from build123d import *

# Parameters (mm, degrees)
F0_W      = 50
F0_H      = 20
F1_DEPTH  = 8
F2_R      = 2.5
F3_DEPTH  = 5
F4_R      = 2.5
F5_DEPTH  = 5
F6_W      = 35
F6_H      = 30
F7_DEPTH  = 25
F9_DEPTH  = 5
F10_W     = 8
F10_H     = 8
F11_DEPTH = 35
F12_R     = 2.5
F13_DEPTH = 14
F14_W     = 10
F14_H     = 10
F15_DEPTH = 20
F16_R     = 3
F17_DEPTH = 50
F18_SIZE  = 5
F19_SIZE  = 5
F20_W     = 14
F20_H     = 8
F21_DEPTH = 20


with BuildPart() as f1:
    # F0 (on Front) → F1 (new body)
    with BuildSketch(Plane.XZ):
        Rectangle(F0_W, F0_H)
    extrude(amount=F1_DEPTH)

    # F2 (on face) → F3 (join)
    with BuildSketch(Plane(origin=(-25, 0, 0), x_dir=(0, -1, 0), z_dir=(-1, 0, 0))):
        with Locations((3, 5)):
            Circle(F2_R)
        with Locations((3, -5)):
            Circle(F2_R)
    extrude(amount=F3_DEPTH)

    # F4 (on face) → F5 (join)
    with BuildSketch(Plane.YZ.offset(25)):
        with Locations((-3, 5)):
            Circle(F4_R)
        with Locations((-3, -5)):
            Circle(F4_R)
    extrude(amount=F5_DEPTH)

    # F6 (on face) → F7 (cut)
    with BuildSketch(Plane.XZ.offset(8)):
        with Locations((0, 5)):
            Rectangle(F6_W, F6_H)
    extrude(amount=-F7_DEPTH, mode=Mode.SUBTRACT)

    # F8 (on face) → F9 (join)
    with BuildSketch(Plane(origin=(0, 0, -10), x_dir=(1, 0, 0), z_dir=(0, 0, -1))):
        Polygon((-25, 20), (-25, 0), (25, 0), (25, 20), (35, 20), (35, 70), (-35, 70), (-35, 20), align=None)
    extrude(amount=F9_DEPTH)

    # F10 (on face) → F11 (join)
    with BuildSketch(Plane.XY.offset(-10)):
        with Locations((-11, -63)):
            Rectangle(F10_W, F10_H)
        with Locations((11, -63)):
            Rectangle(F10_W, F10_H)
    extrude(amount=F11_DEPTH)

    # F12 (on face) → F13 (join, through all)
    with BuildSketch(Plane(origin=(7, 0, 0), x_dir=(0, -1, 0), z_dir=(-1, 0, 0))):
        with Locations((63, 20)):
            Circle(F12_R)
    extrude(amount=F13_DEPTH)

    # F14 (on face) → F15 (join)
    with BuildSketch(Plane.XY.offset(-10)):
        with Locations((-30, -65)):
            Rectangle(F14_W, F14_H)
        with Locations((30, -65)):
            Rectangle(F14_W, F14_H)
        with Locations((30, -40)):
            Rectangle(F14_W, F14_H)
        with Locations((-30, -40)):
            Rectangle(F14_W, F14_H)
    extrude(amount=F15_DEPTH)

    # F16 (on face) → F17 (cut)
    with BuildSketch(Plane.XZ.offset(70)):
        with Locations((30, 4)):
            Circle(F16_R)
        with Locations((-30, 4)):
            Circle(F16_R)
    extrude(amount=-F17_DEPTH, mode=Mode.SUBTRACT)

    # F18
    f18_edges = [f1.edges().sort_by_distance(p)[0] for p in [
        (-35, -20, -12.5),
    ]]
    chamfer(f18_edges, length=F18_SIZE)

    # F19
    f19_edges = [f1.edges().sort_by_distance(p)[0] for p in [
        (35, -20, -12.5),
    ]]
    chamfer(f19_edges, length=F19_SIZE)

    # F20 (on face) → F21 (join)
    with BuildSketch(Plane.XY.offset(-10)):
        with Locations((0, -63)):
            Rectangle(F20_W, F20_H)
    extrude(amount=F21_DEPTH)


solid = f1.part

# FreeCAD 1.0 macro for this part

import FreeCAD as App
import Part
import Sketcher
from FreeCAD import Vector
Q = App.Units.Quantity


def edges_at(feature, points):
    """Names of the edges that pass closest to the given points."""
    edges = feature.Shape.Edges
    near = lambda p: min(range(len(edges)), key=lambda i: edges[i].distToShape(Part.Vertex(*p))[0])
    return sorted({f"Edge{near(p) + 1}" for p in points})

doc = App.newDocument("Part")
body = doc.addObject("PartDesign::Body", "Body")
body.AllowCompound = True

# Sketch on XZ plane
sketch1 = doc.addObject("Sketcher::SketchObject", "Sketch")
body.addObject(sketch1)
sketch1.AttachmentSupport = (doc.XZ_Plane, [""])
sketch1.MapMode = "FlatFace"
sketch1.addGeometry(Part.LineSegment(Vector(-25, 10, 0), Vector(-25, -10, 0)), False)
sketch1.addGeometry(Part.LineSegment(Vector(-25, -10, 0), Vector(25, -10, 0)), False)
sketch1.addGeometry(Part.LineSegment(Vector(25, -10, 0), Vector(25, 10, 0)), False)
sketch1.addGeometry(Part.LineSegment(Vector(25, 10, 0), Vector(-25, 10, 0)), False)
sketch1.addConstraint(Sketcher.Constraint("Coincident", 0, 2, 1, 1))
sketch1.addConstraint(Sketcher.Constraint("Coincident", 1, 2, 2, 1))
sketch1.addConstraint(Sketcher.Constraint("Coincident", 2, 2, 3, 1))
sketch1.addConstraint(Sketcher.Constraint("Coincident", 3, 2, 0, 1))
sketch1.addConstraint(Sketcher.Constraint("Vertical", 0))
sketch1.addConstraint(Sketcher.Constraint("Horizontal", 1))
sketch1.addConstraint(Sketcher.Constraint("Vertical", 2))
sketch1.addConstraint(Sketcher.Constraint("Horizontal", 3))
sketch1.addConstraint(Sketcher.Constraint("Symmetric", 0, 2, 2, 2, -1, 1))
sketch1.addConstraint(Sketcher.Constraint("DistanceX", 1, 1, 1, 2, Q("50 mm")))
sketch1.addConstraint(Sketcher.Constraint("DistanceY", 0, 2, 0, 1, Q("20 mm")))
pad1 = doc.addObject("PartDesign::Pad", "Pad")
body.addObject(pad1)
pad1.Profile = sketch1
pad1.Length = 8

# Sketch on YZ plane
sketch2 = doc.addObject("Sketcher::SketchObject", "Sketch001")
body.addObject(sketch2)
sketch2.AttachmentSupport = (doc.YZ_Plane, [""])
sketch2.MapMode = "FlatFace"
sketch2.AttachmentOffset = App.Placement(Vector(0, 0, -25), App.Rotation())
sketch2.addGeometry(Part.Circle(Vector(-3, 5, 0), Vector(0, 0, 1), 2.5), False)
sketch2.addGeometry(Part.Circle(Vector(-3, -5, 0), Vector(0, 0, 1), 2.5), False)
sketch2.addConstraint(Sketcher.Constraint("Equal", 0, 1))
sketch2.addConstraint(Sketcher.Constraint("Symmetric", 0, 3, 1, 3, -1))
sketch2.addConstraint(Sketcher.Constraint("Diameter", 0, Q("5 mm")))
sketch2.addConstraint(Sketcher.Constraint("DistanceX", 0, 3, -1, 1, Q("3 mm")))
sketch2.addConstraint(Sketcher.Constraint("DistanceY", -1, 1, 0, 3, Q("5 mm")))
pad2 = doc.addObject("PartDesign::Pad", "Pad001")
body.addObject(pad2)
pad2.Profile = sketch2
pad2.Length = 5
pad2.Reversed = True

# Sketch on YZ plane
sketch3 = doc.addObject("Sketcher::SketchObject", "Sketch002")
body.addObject(sketch3)
sketch3.AttachmentSupport = (doc.YZ_Plane, [""])
sketch3.MapMode = "FlatFace"
sketch3.AttachmentOffset = App.Placement(Vector(0, 0, 25), App.Rotation())
sketch3.addGeometry(Part.Circle(Vector(-3, 5, 0), Vector(0, 0, 1), 2.5), False)
sketch3.addGeometry(Part.Circle(Vector(-3, -5, 0), Vector(0, 0, 1), 2.5), False)
sketch3.addConstraint(Sketcher.Constraint("Equal", 0, 1))
sketch3.addConstraint(Sketcher.Constraint("Symmetric", 0, 3, 1, 3, -1))
sketch3.addConstraint(Sketcher.Constraint("Diameter", 0, Q("5 mm")))
sketch3.addConstraint(Sketcher.Constraint("DistanceX", 0, 3, -1, 1, Q("3 mm")))
sketch3.addConstraint(Sketcher.Constraint("DistanceY", -1, 1, 0, 3, Q("5 mm")))
pad3 = doc.addObject("PartDesign::Pad", "Pad002")
body.addObject(pad3)
pad3.Profile = sketch3
pad3.Length = 5

# Sketch on XZ plane
sketch4 = doc.addObject("Sketcher::SketchObject", "Sketch003")
body.addObject(sketch4)
sketch4.AttachmentSupport = (doc.XZ_Plane, [""])
sketch4.MapMode = "FlatFace"
sketch4.AttachmentOffset = App.Placement(Vector(0, 0, 8), App.Rotation())
sketch4.addGeometry(Part.LineSegment(Vector(-17.5, 20, 0), Vector(-17.5, -10, 0)), False)
sketch4.addGeometry(Part.LineSegment(Vector(-17.5, -10, 0), Vector(17.5, -10, 0)), False)
sketch4.addGeometry(Part.LineSegment(Vector(17.5, -10, 0), Vector(17.5, 20, 0)), False)
sketch4.addGeometry(Part.LineSegment(Vector(17.5, 20, 0), Vector(-17.5, 20, 0)), False)
sketch4.addConstraint(Sketcher.Constraint("Coincident", 0, 2, 1, 1))
sketch4.addConstraint(Sketcher.Constraint("Coincident", 1, 2, 2, 1))
sketch4.addConstraint(Sketcher.Constraint("Coincident", 2, 2, 3, 1))
sketch4.addConstraint(Sketcher.Constraint("Coincident", 3, 2, 0, 1))
sketch4.addConstraint(Sketcher.Constraint("Vertical", 0))
sketch4.addConstraint(Sketcher.Constraint("Horizontal", 1))
sketch4.addConstraint(Sketcher.Constraint("Vertical", 2))
sketch4.addConstraint(Sketcher.Constraint("Horizontal", 3))
sketch4.addConstraint(Sketcher.Constraint("DistanceX", 1, 1, 1, 2, Q("35 mm")))
sketch4.addConstraint(Sketcher.Constraint("DistanceY", 0, 2, 0, 1, Q("30 mm")))
sketch4.addConstraint(Sketcher.Constraint("DistanceY", 0, 2, -1, 1, Q("10 mm")))
sketch4.addConstraint(Sketcher.Constraint("DistanceX", 0, 2, -1, 1, Q("17.5 mm")))
pocket1 = doc.addObject("PartDesign::Pocket", "Pocket")
body.addObject(pocket1)
pocket1.Profile = sketch4
pocket1.Length = 25

# Sketch on XY plane
sketch5 = doc.addObject("Sketcher::SketchObject", "Sketch004")
body.addObject(sketch5)
sketch5.AttachmentSupport = (doc.XY_Plane, [""])
sketch5.MapMode = "FlatFace"
sketch5.AttachmentOffset = App.Placement(Vector(0, 0, -10), App.Rotation())
sketch5.addGeometry(Part.LineSegment(Vector(-25, -20, 0), Vector(-25, 0, 0)), False)
sketch5.addGeometry(Part.LineSegment(Vector(-25, 0, 0), Vector(25, 0, 0)), False)
sketch5.addGeometry(Part.LineSegment(Vector(25, 0, 0), Vector(25, -20, 0)), False)
sketch5.addGeometry(Part.LineSegment(Vector(25, -20, 0), Vector(35, -20, 0)), False)
sketch5.addGeometry(Part.LineSegment(Vector(35, -20, 0), Vector(35, -70, 0)), False)
sketch5.addGeometry(Part.LineSegment(Vector(35, -70, 0), Vector(-35, -70, 0)), False)
sketch5.addGeometry(Part.LineSegment(Vector(-35, -70, 0), Vector(-35, -20, 0)), False)
sketch5.addGeometry(Part.LineSegment(Vector(-35, -20, 0), Vector(-25, -20, 0)), False)
sketch5.addConstraint(Sketcher.Constraint("Coincident", 0, 2, 1, 1))
sketch5.addConstraint(Sketcher.Constraint("Coincident", 1, 2, 2, 1))
sketch5.addConstraint(Sketcher.Constraint("Coincident", 2, 2, 3, 1))
sketch5.addConstraint(Sketcher.Constraint("Coincident", 3, 2, 4, 1))
sketch5.addConstraint(Sketcher.Constraint("Coincident", 4, 2, 5, 1))
sketch5.addConstraint(Sketcher.Constraint("Coincident", 5, 2, 6, 1))
sketch5.addConstraint(Sketcher.Constraint("Coincident", 6, 2, 7, 1))
sketch5.addConstraint(Sketcher.Constraint("Coincident", 7, 2, 0, 1))
sketch5.addConstraint(Sketcher.Constraint("Vertical", 0))
sketch5.addConstraint(Sketcher.Constraint("Horizontal", 1))
sketch5.addConstraint(Sketcher.Constraint("Vertical", 2))
sketch5.addConstraint(Sketcher.Constraint("Horizontal", 3))
sketch5.addConstraint(Sketcher.Constraint("Vertical", 4))
sketch5.addConstraint(Sketcher.Constraint("Horizontal", 5))
sketch5.addConstraint(Sketcher.Constraint("Vertical", 6))
sketch5.addConstraint(Sketcher.Constraint("Horizontal", 7))
sketch5.addConstraint(Sketcher.Constraint("Symmetric", 0, 2, 1, 2, -1, 1))
sketch5.addConstraint(Sketcher.Constraint("Symmetric", 3, 2, 6, 2, -2))
sketch5.addConstraint(Sketcher.Constraint("Equal", 1, 4))
sketch5.addConstraint(Sketcher.Constraint("DistanceX", 1, 1, 1, 2, Q("50 mm")))
sketch5.addConstraint(Sketcher.Constraint("DistanceX", 3, 1, 3, 2, Q("10 mm")))
sketch5.addConstraint(Sketcher.Constraint("DistanceY", 0, 1, 0, 2, Q("20 mm")))
pad4 = doc.addObject("PartDesign::Pad", "Pad003")
body.addObject(pad4)
pad4.Profile = sketch5
pad4.Length = 5
pad4.Reversed = True

# Sketch on XY plane
sketch6 = doc.addObject("Sketcher::SketchObject", "Sketch005")
body.addObject(sketch6)
sketch6.AttachmentSupport = (doc.XY_Plane, [""])
sketch6.MapMode = "FlatFace"
sketch6.AttachmentOffset = App.Placement(Vector(0, 0, -10), App.Rotation())
sketch6.addGeometry(Part.LineSegment(Vector(-15, -59, 0), Vector(-15, -67, 0)), False)
sketch6.addGeometry(Part.LineSegment(Vector(-15, -67, 0), Vector(-7, -67, 0)), False)
sketch6.addGeometry(Part.LineSegment(Vector(-7, -67, 0), Vector(-7, -59, 0)), False)
sketch6.addGeometry(Part.LineSegment(Vector(-7, -59, 0), Vector(-15, -59, 0)), False)
sketch6.addGeometry(Part.LineSegment(Vector(7, -59, 0), Vector(7, -67, 0)), False)
sketch6.addGeometry(Part.LineSegment(Vector(7, -67, 0), Vector(15, -67, 0)), False)
sketch6.addGeometry(Part.LineSegment(Vector(15, -67, 0), Vector(15, -59, 0)), False)
sketch6.addGeometry(Part.LineSegment(Vector(15, -59, 0), Vector(7, -59, 0)), False)
sketch6.addConstraint(Sketcher.Constraint("Coincident", 0, 2, 1, 1))
sketch6.addConstraint(Sketcher.Constraint("Coincident", 1, 2, 2, 1))
sketch6.addConstraint(Sketcher.Constraint("Coincident", 2, 2, 3, 1))
sketch6.addConstraint(Sketcher.Constraint("Coincident", 3, 2, 0, 1))
sketch6.addConstraint(Sketcher.Constraint("Coincident", 4, 2, 5, 1))
sketch6.addConstraint(Sketcher.Constraint("Coincident", 5, 2, 6, 1))
sketch6.addConstraint(Sketcher.Constraint("Coincident", 6, 2, 7, 1))
sketch6.addConstraint(Sketcher.Constraint("Coincident", 7, 2, 4, 1))
sketch6.addConstraint(Sketcher.Constraint("Vertical", 0))
sketch6.addConstraint(Sketcher.Constraint("Horizontal", 1))
sketch6.addConstraint(Sketcher.Constraint("Vertical", 2))
sketch6.addConstraint(Sketcher.Constraint("Horizontal", 3))
sketch6.addConstraint(Sketcher.Constraint("Vertical", 4))
sketch6.addConstraint(Sketcher.Constraint("Horizontal", 5))
sketch6.addConstraint(Sketcher.Constraint("Vertical", 6))
sketch6.addConstraint(Sketcher.Constraint("Horizontal", 7))
sketch6.addConstraint(Sketcher.Constraint("Symmetric", 1, 2, 4, 2, -2))
sketch6.addConstraint(Sketcher.Constraint("Symmetric", 3, 2, 6, 2, -2))
sketch6.addConstraint(Sketcher.Constraint("Equal", 7, 0))
sketch6.addConstraint(Sketcher.Constraint("DistanceX", 1, 1, 1, 2, Q("8 mm")))
sketch6.addConstraint(Sketcher.Constraint("DistanceX", 0, 2, -1, 1, Q("15 mm")))
sketch6.addConstraint(Sketcher.Constraint("DistanceY", 0, 2, -1, 1, Q("67 mm")))
pad5 = doc.addObject("PartDesign::Pad", "Pad004")
body.addObject(pad5)
pad5.Profile = sketch6
pad5.Length = 35

# Sketch on YZ plane
sketch7 = doc.addObject("Sketcher::SketchObject", "Sketch006")
body.addObject(sketch7)
sketch7.AttachmentSupport = (doc.YZ_Plane, [""])
sketch7.MapMode = "FlatFace"
sketch7.AttachmentOffset = App.Placement(Vector(0, 0, 7), App.Rotation())
sketch7.addGeometry(Part.Circle(Vector(-63, 20, 0), Vector(0, 0, 1), 2.5), False)
sketch7.addConstraint(Sketcher.Constraint("Diameter", 0, Q("5 mm")))
sketch7.addConstraint(Sketcher.Constraint("DistanceX", 0, 3, -1, 1, Q("63 mm")))
sketch7.addConstraint(Sketcher.Constraint("DistanceY", -1, 1, 0, 3, Q("20 mm")))
pad6 = doc.addObject("PartDesign::Pad", "Pad005")
body.addObject(pad6)
pad6.Profile = sketch7
pad6.Type = "UpToLast"
pad6.Reversed = True

# Sketch on XY plane
sketch8 = doc.addObject("Sketcher::SketchObject", "Sketch007")
body.addObject(sketch8)
sketch8.AttachmentSupport = (doc.XY_Plane, [""])
sketch8.MapMode = "FlatFace"
sketch8.AttachmentOffset = App.Placement(Vector(0, 0, -10), App.Rotation())
sketch8.addGeometry(Part.LineSegment(Vector(-35, -60, 0), Vector(-35, -70, 0)), False)
sketch8.addGeometry(Part.LineSegment(Vector(-35, -70, 0), Vector(-25, -70, 0)), False)
sketch8.addGeometry(Part.LineSegment(Vector(-25, -70, 0), Vector(-25, -60, 0)), False)
sketch8.addGeometry(Part.LineSegment(Vector(-25, -60, 0), Vector(-35, -60, 0)), False)
sketch8.addGeometry(Part.LineSegment(Vector(25, -60, 0), Vector(25, -70, 0)), False)
sketch8.addGeometry(Part.LineSegment(Vector(25, -70, 0), Vector(35, -70, 0)), False)
sketch8.addGeometry(Part.LineSegment(Vector(35, -70, 0), Vector(35, -60, 0)), False)
sketch8.addGeometry(Part.LineSegment(Vector(35, -60, 0), Vector(25, -60, 0)), False)
sketch8.addGeometry(Part.LineSegment(Vector(25, -35, 0), Vector(25, -45, 0)), False)
sketch8.addGeometry(Part.LineSegment(Vector(25, -45, 0), Vector(35, -45, 0)), False)
sketch8.addGeometry(Part.LineSegment(Vector(35, -45, 0), Vector(35, -35, 0)), False)
sketch8.addGeometry(Part.LineSegment(Vector(35, -35, 0), Vector(25, -35, 0)), False)
sketch8.addGeometry(Part.LineSegment(Vector(-35, -35, 0), Vector(-35, -45, 0)), False)
sketch8.addGeometry(Part.LineSegment(Vector(-35, -45, 0), Vector(-25, -45, 0)), False)
sketch8.addGeometry(Part.LineSegment(Vector(-25, -45, 0), Vector(-25, -35, 0)), False)
sketch8.addGeometry(Part.LineSegment(Vector(-25, -35, 0), Vector(-35, -35, 0)), False)
sketch8.addConstraint(Sketcher.Constraint("Coincident", 0, 2, 1, 1))
sketch8.addConstraint(Sketcher.Constraint("Coincident", 1, 2, 2, 1))
sketch8.addConstraint(Sketcher.Constraint("Coincident", 2, 2, 3, 1))
sketch8.addConstraint(Sketcher.Constraint("Coincident", 3, 2, 0, 1))
sketch8.addConstraint(Sketcher.Constraint("Coincident", 4, 2, 5, 1))
sketch8.addConstraint(Sketcher.Constraint("Coincident", 5, 2, 6, 1))
sketch8.addConstraint(Sketcher.Constraint("Coincident", 6, 2, 7, 1))
sketch8.addConstraint(Sketcher.Constraint("Coincident", 7, 2, 4, 1))
sketch8.addConstraint(Sketcher.Constraint("Coincident", 8, 2, 9, 1))
sketch8.addConstraint(Sketcher.Constraint("Coincident", 9, 2, 10, 1))
sketch8.addConstraint(Sketcher.Constraint("Coincident", 10, 2, 11, 1))
sketch8.addConstraint(Sketcher.Constraint("Coincident", 11, 2, 8, 1))
sketch8.addConstraint(Sketcher.Constraint("Coincident", 12, 2, 13, 1))
sketch8.addConstraint(Sketcher.Constraint("Coincident", 13, 2, 14, 1))
sketch8.addConstraint(Sketcher.Constraint("Coincident", 14, 2, 15, 1))
sketch8.addConstraint(Sketcher.Constraint("Coincident", 15, 2, 12, 1))
sketch8.addConstraint(Sketcher.Constraint("Vertical", 0))
sketch8.addConstraint(Sketcher.Constraint("Horizontal", 1))
sketch8.addConstraint(Sketcher.Constraint("Vertical", 2))
sketch8.addConstraint(Sketcher.Constraint("Horizontal", 3))
sketch8.addConstraint(Sketcher.Constraint("Vertical", 4))
sketch8.addConstraint(Sketcher.Constraint("Horizontal", 5))
sketch8.addConstraint(Sketcher.Constraint("Vertical", 6))
sketch8.addConstraint(Sketcher.Constraint("Horizontal", 7))
sketch8.addConstraint(Sketcher.Constraint("Vertical", 8))
sketch8.addConstraint(Sketcher.Constraint("Horizontal", 9))
sketch8.addConstraint(Sketcher.Constraint("Vertical", 10))
sketch8.addConstraint(Sketcher.Constraint("Horizontal", 11))
sketch8.addConstraint(Sketcher.Constraint("Vertical", 12))
sketch8.addConstraint(Sketcher.Constraint("Horizontal", 13))
sketch8.addConstraint(Sketcher.Constraint("Vertical", 14))
sketch8.addConstraint(Sketcher.Constraint("Horizontal", 15))
sketch8.addConstraint(Sketcher.Constraint("Symmetric", 1, 2, 4, 2, -2))
sketch8.addConstraint(Sketcher.Constraint("Symmetric", 3, 2, 6, 2, -2))
sketch8.addConstraint(Sketcher.Constraint("Symmetric", 9, 2, 12, 2, -2))
sketch8.addConstraint(Sketcher.Constraint("Symmetric", 11, 2, 14, 2, -2))
sketch8.addConstraint(Sketcher.Constraint("Vertical", 7, 2, 8, 2))
sketch8.addConstraint(Sketcher.Constraint("Vertical", 6, 2, 9, 2))
sketch8.addConstraint(Sketcher.Constraint("Equal", 15, 0))
sketch8.addConstraint(Sketcher.Constraint("Equal", 6, 8))
sketch8.addConstraint(Sketcher.Constraint("DistanceX", 1, 1, 1, 2, Q("10 mm")))
sketch8.addConstraint(Sketcher.Constraint("DistanceX", 0, 2, -1, 1, Q("35 mm")))
sketch8.addConstraint(Sketcher.Constraint("DistanceY", 0, 2, -1, 1, Q("70 mm")))
sketch8.addConstraint(Sketcher.Constraint("DistanceY", 8, 2, -1, 1, Q("45 mm")))
pad7 = doc.addObject("PartDesign::Pad", "Pad006")
body.addObject(pad7)
pad7.Profile = sketch8
pad7.Length = 20

# Sketch on XZ plane
sketch9 = doc.addObject("Sketcher::SketchObject", "Sketch008")
body.addObject(sketch9)
sketch9.AttachmentSupport = (doc.XZ_Plane, [""])
sketch9.MapMode = "FlatFace"
sketch9.AttachmentOffset = App.Placement(Vector(0, 0, 70), App.Rotation())
sketch9.addGeometry(Part.Circle(Vector(30, 4, 0), Vector(0, 0, 1), 3), False)
sketch9.addGeometry(Part.Circle(Vector(-30, 4, 0), Vector(0, 0, 1), 3), False)
sketch9.addConstraint(Sketcher.Constraint("Equal", 0, 1))
sketch9.addConstraint(Sketcher.Constraint("Symmetric", 0, 3, 1, 3, -2))
sketch9.addConstraint(Sketcher.Constraint("Diameter", 0, Q("6 mm")))
sketch9.addConstraint(Sketcher.Constraint("DistanceX", -1, 1, 0, 3, Q("30 mm")))
sketch9.addConstraint(Sketcher.Constraint("DistanceY", -1, 1, 0, 3, Q("4 mm")))
pocket2 = doc.addObject("PartDesign::Pocket", "Pocket001")
body.addObject(pocket2)
pocket2.Profile = sketch9
pocket2.Length = 50
doc.recompute()

chamfer = doc.addObject("PartDesign::Chamfer", "Chamfer")
body.addObject(chamfer)
chamfer.Base = (pocket2, edges_at(pocket2, [(-35, -20, -12.5)]))
chamfer.Size = 5
doc.recompute()

chamfer2 = doc.addObject("PartDesign::Chamfer", "Chamfer001")
body.addObject(chamfer2)
chamfer2.Base = (chamfer, edges_at(chamfer, [(35, -20, -12.5)]))
chamfer2.Size = 5

# Sketch on XY plane
sketch10 = doc.addObject("Sketcher::SketchObject", "Sketch009")
body.addObject(sketch10)
sketch10.AttachmentSupport = (doc.XY_Plane, [""])
sketch10.MapMode = "FlatFace"
sketch10.AttachmentOffset = App.Placement(Vector(0, 0, -10), App.Rotation())
sketch10.addGeometry(Part.LineSegment(Vector(-7, -59, 0), Vector(-7, -67, 0)), False)
sketch10.addGeometry(Part.LineSegment(Vector(-7, -67, 0), Vector(7, -67, 0)), False)
sketch10.addGeometry(Part.LineSegment(Vector(7, -67, 0), Vector(7, -59, 0)), False)
sketch10.addGeometry(Part.LineSegment(Vector(7, -59, 0), Vector(-7, -59, 0)), False)
sketch10.addConstraint(Sketcher.Constraint("Coincident", 0, 2, 1, 1))
sketch10.addConstraint(Sketcher.Constraint("Coincident", 1, 2, 2, 1))
sketch10.addConstraint(Sketcher.Constraint("Coincident", 2, 2, 3, 1))
sketch10.addConstraint(Sketcher.Constraint("Coincident", 3, 2, 0, 1))
sketch10.addConstraint(Sketcher.Constraint("Vertical", 0))
sketch10.addConstraint(Sketcher.Constraint("Horizontal", 1))
sketch10.addConstraint(Sketcher.Constraint("Vertical", 2))
sketch10.addConstraint(Sketcher.Constraint("Horizontal", 3))
sketch10.addConstraint(Sketcher.Constraint("DistanceX", 1, 1, 1, 2, Q("14 mm")))
sketch10.addConstraint(Sketcher.Constraint("DistanceY", 0, 2, 0, 1, Q("8 mm")))
sketch10.addConstraint(Sketcher.Constraint("DistanceX", 0, 2, -1, 1, Q("7 mm")))
sketch10.addConstraint(Sketcher.Constraint("DistanceY", 0, 2, -1, 1, Q("67 mm")))
pad8 = doc.addObject("PartDesign::Pad", "Pad007")
body.addObject(pad8)
pad8.Profile = sketch10
pad8.Length = 20

doc.recompute()
